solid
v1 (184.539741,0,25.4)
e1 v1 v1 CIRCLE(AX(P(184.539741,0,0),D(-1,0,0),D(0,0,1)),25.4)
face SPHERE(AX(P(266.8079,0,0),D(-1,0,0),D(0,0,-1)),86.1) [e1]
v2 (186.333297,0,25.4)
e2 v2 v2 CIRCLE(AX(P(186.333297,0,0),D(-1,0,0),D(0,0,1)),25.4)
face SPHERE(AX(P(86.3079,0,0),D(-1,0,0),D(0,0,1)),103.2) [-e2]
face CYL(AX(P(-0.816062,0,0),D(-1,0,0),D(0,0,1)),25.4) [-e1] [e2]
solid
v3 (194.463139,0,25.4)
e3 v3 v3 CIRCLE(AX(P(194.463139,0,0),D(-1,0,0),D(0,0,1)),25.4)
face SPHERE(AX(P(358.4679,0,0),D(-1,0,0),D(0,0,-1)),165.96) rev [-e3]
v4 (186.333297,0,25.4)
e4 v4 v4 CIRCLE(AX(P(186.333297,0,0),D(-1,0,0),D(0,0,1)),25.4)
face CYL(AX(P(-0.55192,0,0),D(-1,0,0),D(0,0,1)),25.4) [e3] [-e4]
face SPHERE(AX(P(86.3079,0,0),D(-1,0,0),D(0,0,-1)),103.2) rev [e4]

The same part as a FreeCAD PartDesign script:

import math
import FreeCAD as App
import Part
import Sketcher
from FreeCAD import Vector
Q = App.Units.Quantity

doc = App.newDocument("Part")
body = doc.addObject("PartDesign::Body", "Body")

sketch1 = body.newObject("Sketcher::SketchObject", "Sketch")
sketch1.AttachmentSupport = (doc.getObject("XZ_Plane"), [""])
sketch1.MapMode = "FlatFace"
sketch1.addGeometry(Part.ArcOfCircle(Part.Circle(Vector(266.8, 0, 0), Vector(0, 0, 1), 86.1), math.radians(180), math.radians(197.16)), False)
sketch1.addGeometry(Part.LineSegment(Vector(180.7, 0, 0), Vector(189.5, 0, 0)), False)
sketch1.addGeometry(Part.ArcOfCircle(Part.Circle(Vector(86.3, 0, 0), Vector(0, 0, 1), 103.2), math.radians(-14.25), math.radians(0)), False)
sketch1.addGeometry(Part.LineSegment(Vector(186.3, -25.4, 0), Vector(184.5, -25.4, 0)), False)
sketch1.addConstraint(Sketcher.Constraint("Coincident", 0, 1, 1, 1))
sketch1.addConstraint(Sketcher.Constraint("Coincident", 1, 2, 2, 2))
sketch1.addConstraint(Sketcher.Constraint("Coincident", 2, 1, 3, 1))
sketch1.addConstraint(Sketcher.Constraint("Coincident", 3, 2, 0, 2))
sketch1.addConstraint(Sketcher.Constraint("Horizontal", 1))
sketch1.addConstraint(Sketcher.Constraint("Horizontal", 3))
sketch1.addConstraint(Sketcher.Constraint("PointOnObject", 0, 3, -1))
sketch1.addConstraint(Sketcher.Constraint("PointOnObject", 2, 3, -1))
sketch1.addConstraint(Sketcher.Constraint("PointOnObject", 0, 1, -1))
sketch1.addConstraint(Sketcher.Constraint("Radius", 0, Q("86.1 mm")))
sketch1.addConstraint(Sketcher.Constraint("Radius", 2, Q("103.2 mm")))
sketch1.addConstraint(Sketcher.Constraint("DistanceX", 1, 1, 1, 2, Q("8.8 mm")))
sketch1.addConstraint(Sketcher.Constraint("DistanceY", 2, 1, -1, 1, Q("25.4 mm")))
sketch1.addConstraint(Sketcher.Constraint("DistanceX", -1, 1, 0, 3, Q("266.8079 mm")))
revolution = body.newObject("PartDesign::Revolution", "Revolution")
revolution.Profile = sketch1
revolution.ReferenceAxis = (sketch1, ["H_Axis"])
revolution.Angle = 360
body2 = doc.addObject("PartDesign::Body", "Body001")

sketch2 = body2.newObject("Sketcher::SketchObject", "Sketch001")
sketch2.AttachmentSupport = (doc.getObject("XZ_Plane001"), [""])
sketch2.MapMode = "FlatFace"
sketch2.addGeometry(Part.LineSegment(Vector(194.5, -25.4, 0), Vector(186.3, -25.4, 0)), False)
sketch2.addGeometry(Part.ArcOfCircle(Part.Circle(Vector(86.3, 0, 0), Vector(0, 0, 1), 103.2), math.radians(-14.25), math.radians(0)), False)
sketch2.addGeometry(Part.LineSegment(Vector(189.5, 0, 0), Vector(192.5, 0, 0)), False)
sketch2.addGeometry(Part.ArcOfCircle(Part.Circle(Vector(358.5, 0, 0), Vector(0, 0, 1), 166), math.radians(180), math.radians(188.8)), False)
sketch2.addConstraint(Sketcher.Constraint("Coincident", 0, 2, 1, 1))
sketch2.addConstraint(Sketcher.Constraint("Coincident", 1, 2, 2, 1))
sketch2.addConstraint(Sketcher.Constraint("Coincident", 2, 2, 3, 1))
sketch2.addConstraint(Sketcher.Constraint("Coincident", 3, 2, 0, 1))
sketch2.addConstraint(Sketcher.Constraint("Horizontal", 0))
sketch2.addConstraint(Sketcher.Constraint("Horizontal", 2))
sketch2.addConstraint(Sketcher.Constraint("PointOnObject", 1, 3, -1))
sketch2.addConstraint(Sketcher.Constraint("PointOnObject", 3, 3, -1))
sketch2.addConstraint(Sketcher.Constraint("PointOnObject", 1, 2, -1))
sketch2.addConstraint(Sketcher.Constraint("Radius", 1, Q("103.2 mm")))
sketch2.addConstraint(Sketcher.Constraint("DistanceX", 2, 1, 2, 2, Q("3 mm")))
sketch2.addConstraint(Sketcher.Constraint("Radius", 3, Q("165.96 mm")))
sketch2.addConstraint(Sketcher.Constraint("DistanceY", 0, 2, -1, 1, Q("25.4 mm")))
sketch2.addConstraint(Sketcher.Constraint("DistanceX", -1, 1, 1, 3, Q("86.3079 mm")))
revolution2 = body2.newObject("PartDesign::Revolution", "Revolution001")
revolution2.Profile = sketch2
revolution2.ReferenceAxis = (sketch2, ["H_Axis"])
revolution2.Angle = 360

doc.recompute()
